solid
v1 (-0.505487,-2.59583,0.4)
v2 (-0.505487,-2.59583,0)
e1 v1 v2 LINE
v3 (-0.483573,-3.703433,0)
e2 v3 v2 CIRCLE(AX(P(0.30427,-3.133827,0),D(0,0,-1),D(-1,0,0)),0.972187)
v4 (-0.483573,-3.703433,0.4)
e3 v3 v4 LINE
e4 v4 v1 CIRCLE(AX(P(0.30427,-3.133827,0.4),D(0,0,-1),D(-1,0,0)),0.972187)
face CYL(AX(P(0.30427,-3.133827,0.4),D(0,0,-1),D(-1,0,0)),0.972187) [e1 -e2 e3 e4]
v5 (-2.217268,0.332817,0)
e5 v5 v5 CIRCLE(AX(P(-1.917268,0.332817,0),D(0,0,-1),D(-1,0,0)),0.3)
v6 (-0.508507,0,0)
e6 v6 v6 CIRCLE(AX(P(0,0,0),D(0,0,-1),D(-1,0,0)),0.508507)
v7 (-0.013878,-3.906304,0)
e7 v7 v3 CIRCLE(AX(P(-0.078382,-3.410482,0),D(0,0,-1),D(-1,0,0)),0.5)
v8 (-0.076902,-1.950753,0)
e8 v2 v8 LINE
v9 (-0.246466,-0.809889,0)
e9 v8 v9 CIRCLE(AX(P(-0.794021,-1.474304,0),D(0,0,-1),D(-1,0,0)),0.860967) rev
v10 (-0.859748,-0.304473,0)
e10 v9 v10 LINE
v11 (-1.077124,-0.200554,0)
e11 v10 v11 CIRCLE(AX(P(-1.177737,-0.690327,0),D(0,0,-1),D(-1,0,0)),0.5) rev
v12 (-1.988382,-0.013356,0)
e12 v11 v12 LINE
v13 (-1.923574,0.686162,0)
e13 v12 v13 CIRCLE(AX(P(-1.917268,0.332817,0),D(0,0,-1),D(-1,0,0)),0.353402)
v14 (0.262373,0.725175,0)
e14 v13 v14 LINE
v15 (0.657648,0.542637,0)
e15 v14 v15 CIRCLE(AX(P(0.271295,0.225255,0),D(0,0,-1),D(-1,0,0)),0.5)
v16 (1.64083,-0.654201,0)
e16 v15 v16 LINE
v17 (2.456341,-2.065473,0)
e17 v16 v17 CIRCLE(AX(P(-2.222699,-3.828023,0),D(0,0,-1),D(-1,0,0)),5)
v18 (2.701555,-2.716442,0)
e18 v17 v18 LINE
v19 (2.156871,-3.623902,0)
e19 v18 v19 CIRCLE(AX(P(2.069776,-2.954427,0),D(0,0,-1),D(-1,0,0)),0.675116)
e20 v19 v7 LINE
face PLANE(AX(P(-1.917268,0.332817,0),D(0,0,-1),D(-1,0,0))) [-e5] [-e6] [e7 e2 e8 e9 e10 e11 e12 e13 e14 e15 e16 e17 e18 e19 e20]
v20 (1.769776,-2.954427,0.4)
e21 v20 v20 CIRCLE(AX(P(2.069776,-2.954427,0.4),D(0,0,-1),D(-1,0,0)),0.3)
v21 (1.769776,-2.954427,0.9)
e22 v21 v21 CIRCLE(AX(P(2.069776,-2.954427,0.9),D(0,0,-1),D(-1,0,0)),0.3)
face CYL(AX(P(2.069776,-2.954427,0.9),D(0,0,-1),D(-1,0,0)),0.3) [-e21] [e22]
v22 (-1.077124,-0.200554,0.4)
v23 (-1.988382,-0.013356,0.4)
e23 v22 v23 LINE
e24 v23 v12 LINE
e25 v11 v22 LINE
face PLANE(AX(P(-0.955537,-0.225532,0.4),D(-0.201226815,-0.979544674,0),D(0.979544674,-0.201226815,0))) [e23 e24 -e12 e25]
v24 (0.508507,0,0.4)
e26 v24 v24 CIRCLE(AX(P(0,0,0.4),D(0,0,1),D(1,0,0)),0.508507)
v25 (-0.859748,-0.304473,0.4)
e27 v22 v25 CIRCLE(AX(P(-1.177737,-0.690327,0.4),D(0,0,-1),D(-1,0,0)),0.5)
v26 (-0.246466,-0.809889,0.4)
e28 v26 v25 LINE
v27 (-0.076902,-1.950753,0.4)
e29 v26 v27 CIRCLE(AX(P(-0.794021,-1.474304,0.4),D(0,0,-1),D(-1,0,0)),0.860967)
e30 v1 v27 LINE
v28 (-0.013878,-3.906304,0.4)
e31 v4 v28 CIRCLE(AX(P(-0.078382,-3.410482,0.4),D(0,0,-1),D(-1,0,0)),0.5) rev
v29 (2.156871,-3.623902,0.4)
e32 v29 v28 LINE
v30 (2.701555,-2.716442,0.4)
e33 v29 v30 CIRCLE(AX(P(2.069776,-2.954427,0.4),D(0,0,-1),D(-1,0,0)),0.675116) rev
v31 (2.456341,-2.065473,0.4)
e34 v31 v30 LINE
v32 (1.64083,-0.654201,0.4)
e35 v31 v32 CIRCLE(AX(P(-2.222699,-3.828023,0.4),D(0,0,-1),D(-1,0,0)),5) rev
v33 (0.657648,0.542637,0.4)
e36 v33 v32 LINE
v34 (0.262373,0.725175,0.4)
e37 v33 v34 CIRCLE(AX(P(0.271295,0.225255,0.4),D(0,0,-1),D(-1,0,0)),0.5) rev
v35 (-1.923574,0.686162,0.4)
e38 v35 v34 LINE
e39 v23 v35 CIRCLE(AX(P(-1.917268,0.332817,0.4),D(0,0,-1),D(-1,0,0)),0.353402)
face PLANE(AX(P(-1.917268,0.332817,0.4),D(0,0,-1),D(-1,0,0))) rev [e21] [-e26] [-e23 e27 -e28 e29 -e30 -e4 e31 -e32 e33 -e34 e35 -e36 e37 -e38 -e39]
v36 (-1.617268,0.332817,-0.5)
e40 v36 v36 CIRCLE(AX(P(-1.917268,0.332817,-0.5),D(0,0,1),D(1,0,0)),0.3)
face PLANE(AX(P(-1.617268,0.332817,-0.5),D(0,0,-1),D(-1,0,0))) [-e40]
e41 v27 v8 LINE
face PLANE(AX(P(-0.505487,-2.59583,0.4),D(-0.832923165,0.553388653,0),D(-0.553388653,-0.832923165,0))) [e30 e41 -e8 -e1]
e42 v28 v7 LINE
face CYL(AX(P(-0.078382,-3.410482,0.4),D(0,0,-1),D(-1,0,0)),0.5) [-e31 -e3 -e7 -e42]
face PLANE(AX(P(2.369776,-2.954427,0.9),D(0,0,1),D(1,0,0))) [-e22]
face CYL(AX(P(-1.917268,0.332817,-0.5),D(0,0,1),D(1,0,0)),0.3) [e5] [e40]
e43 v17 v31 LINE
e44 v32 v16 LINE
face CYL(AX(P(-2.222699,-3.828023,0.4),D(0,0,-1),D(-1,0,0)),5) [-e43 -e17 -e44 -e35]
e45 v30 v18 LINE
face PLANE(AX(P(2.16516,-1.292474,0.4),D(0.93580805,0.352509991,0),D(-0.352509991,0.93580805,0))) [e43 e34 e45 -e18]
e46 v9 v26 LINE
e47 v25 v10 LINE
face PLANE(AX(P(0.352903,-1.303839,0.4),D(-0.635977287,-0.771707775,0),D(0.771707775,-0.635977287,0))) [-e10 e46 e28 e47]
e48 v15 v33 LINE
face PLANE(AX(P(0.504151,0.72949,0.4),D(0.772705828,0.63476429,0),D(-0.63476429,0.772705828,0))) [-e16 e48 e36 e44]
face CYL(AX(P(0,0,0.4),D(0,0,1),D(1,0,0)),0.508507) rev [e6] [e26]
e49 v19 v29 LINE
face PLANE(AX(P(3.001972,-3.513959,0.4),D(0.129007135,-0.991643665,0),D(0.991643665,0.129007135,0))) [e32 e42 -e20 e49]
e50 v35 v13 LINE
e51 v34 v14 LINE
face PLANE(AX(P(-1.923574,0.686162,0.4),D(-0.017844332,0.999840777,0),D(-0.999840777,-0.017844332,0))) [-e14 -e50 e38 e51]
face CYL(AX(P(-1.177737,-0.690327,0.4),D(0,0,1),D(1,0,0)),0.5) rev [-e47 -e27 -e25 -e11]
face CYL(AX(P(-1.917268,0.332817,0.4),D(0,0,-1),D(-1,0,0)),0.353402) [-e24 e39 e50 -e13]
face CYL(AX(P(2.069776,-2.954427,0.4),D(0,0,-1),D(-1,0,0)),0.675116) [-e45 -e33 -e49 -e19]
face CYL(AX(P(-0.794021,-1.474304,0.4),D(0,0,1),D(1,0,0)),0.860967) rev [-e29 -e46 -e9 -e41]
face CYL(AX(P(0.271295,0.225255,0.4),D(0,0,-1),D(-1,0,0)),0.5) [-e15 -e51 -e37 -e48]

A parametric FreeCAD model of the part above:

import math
import FreeCAD as App
import Part
import Sketcher

V = App.Vector


def edges_at(feature, points):
    """Names of the edges that pass closest to the given points."""
    edges = feature.Shape.Edges
    near = lambda p: min(range(len(edges)), key=lambda i: edges[i].distToShape(Part.Vertex(*p))[0])
    return sorted({f"Edge{near(p) + 1}" for p in points})


def add_polygon(sketch, points):
    """Adds a closed chain of lines whose ends are joined by coincident constraints."""
    first, n = sketch.GeometryCount, len(points)
    for a, b in zip(points, points[1:] + points[:1]):
        sketch.addGeometry(Part.LineSegment(App.Vector(*a, 0), App.Vector(*b, 0)), False)
    for i in range(n):
        sketch.addConstraint(Sketcher.Constraint("Coincident", first + i, 2, first + (i + 1) % n, 1))

doc = App.newDocument("Part")
body = doc.addObject("PartDesign::Body", "Body")

# Sketch on XY plane
sketch1 = doc.addObject("Sketcher::SketchObject", "Sketch")
body.addObject(sketch1)
sketch1.AttachmentSupport = (doc.XY_Plane, [""])
sketch1.MapMode = "FlatFace"
sketch1.addGeometry([
    Part.LineSegment(V(-1.923574, 0.686162, 0), V(0.504151, 0.72949, 0)),  # 0
    Part.LineSegment(V(0.504151, 0.72949, 0), V(2.16516, -1.292474, 0)),  # 1
    Part.LineSegment(V(2.16516, -1.292474, 0), V(3.001972, -3.513959, 0)),  # 2
    Part.LineSegment(V(3.001972, -3.513959, 0), V(-0.244519, -3.936309, 0)),  # 3
    Part.ArcOfCircle(Part.Circle(V(0.30427, -3.133827, 0), V(0, 0, 1), 0.972187), math.radians(146.400199), math.radians(235.633152)),  # 4
    Part.LineSegment(V(-0.505487, -2.59583, 0), V(0.352903, -1.303839, 0)),  # 5
    Part.LineSegment(V(0.352903, -1.303839, 0), V(-0.955537, -0.225532, 0)),  # 6
    Part.LineSegment(V(-0.955537, -0.225532, 0), V(-1.988382, -0.013356, 0)),  # 7
    Part.ArcOfCircle(Part.Circle(V(-1.917268, 0.332817, 0), V(0, 0, 1), 0.353402), math.radians(91.022459), math.radians(258.391291)),  # 8
], False)
sketch1.addConstraint([
    Sketcher.Constraint("Coincident", 0, 2, 1, 1),
    Sketcher.Constraint("Coincident", 1, 2, 2, 1),
    Sketcher.Constraint("Coincident", 2, 2, 3, 1),
    Sketcher.Constraint("Coincident", 3, 2, 4, 2),
    Sketcher.Constraint("Tangent", 4, 1, 5, 1),
    Sketcher.Constraint("Coincident", 5, 2, 6, 1),
    Sketcher.Constraint("Coincident", 6, 2, 7, 1),
    Sketcher.Constraint("Tangent", 7, 2, 8, 2),
    Sketcher.Constraint("Tangent", 8, 1, 0, 1),
    Sketcher.Constraint("Radius", 8, 0.353402),
    Sketcher.Constraint("DistanceY", 5, 2, 8, 1, 1.990001),
    Sketcher.Constraint("Radius", 4, 0.972187),
    Sketcher.Constraint("DistanceY", 3, 2, 0, 2, 4.6658),
    Sketcher.Constraint("Distance", 2, 2.373869),
    Sketcher.Constraint("Distance", 3, 3.273849),
    Sketcher.Constraint("Distance", 5, 1.551152),
    Sketcher.Constraint("DistanceX", -1, 1, 4, 3, 0.30427),
    Sketcher.Constraint("DistanceX", 8, 3, -1, 1, 1.917268),
    Sketcher.Constraint("DistanceX", -1, 1, 0, 2, 0.504151),
    Sketcher.Constraint("DistanceY", -1, 1, 0, 2, 0.72949),
    Sketcher.Constraint("DistanceX", -1, 1, 1, 2, 2.16516),
    Sketcher.Constraint("DistanceY", 2, 2, -1, 1, 3.513959),
    Sketcher.Constraint("DistanceX", 3, 2, -1, 1, 0.244519),
    Sketcher.Constraint("DistanceY", 4, 1, -1, 1, 2.59583),
    Sketcher.Constraint("DistanceY", 6, 2, -1, 1, 0.225532),
    Sketcher.Constraint("DistanceX", 8, 3, 6, 2, 0.961731),
])
pad1 = doc.addObject("PartDesign::Pad", "Pad")
body.addObject(pad1)
pad1.Profile = sketch1
pad1.Length = 0.4

# Sketch on XZ plane
sketch2 = doc.addObject("Sketcher::SketchObject", "Sketch001")
body.addObject(sketch2)
sketch2.AttachmentSupport = (doc.XZ_Plane, [""])
sketch2.MapMode = "FlatFace"
sketch2.AttachmentOffset = App.Placement(V(0, 0, 2.954427), App.Rotation())
add_polygon(sketch2, [(2.069776, 0.9), (2.069776, 0.4), (2.369776, 0.4), (2.369776, 0.9)])  # lines 0-3
sketch2.addGeometry(Part.LineSegment(V(2.069776, 0.9, 0), V(2.069776, 0.4, 0)), True)  # axis
sketch2.addConstraint([
    Sketcher.Constraint("Vertical", 0),
    Sketcher.Constraint("Horizontal", 1),
    Sketcher.Constraint("Vertical", 2),
    Sketcher.Constraint("Horizontal", 3),
    Sketcher.Constraint("Vertical", 4),
    Sketcher.Constraint("Coincident", 4, 1, 3, 2),
    Sketcher.Constraint("Horizontal", 1, 2, 4, 2),
    Sketcher.Constraint("DistanceX", 1, 1, 1, 2, 0.3),
    Sketcher.Constraint("DistanceY", 0, 2, 0, 1, 0.5),
    Sketcher.Constraint("DistanceY", -1, 1, 0, 2, 0.4),
    Sketcher.Constraint("DistanceX", -1, 1, 0, 2, 2.069776),
])
revolution = doc.addObject("PartDesign::Revolution", "Revolution")
body.addObject(revolution)
revolution.Profile = sketch2
revolution.ReferenceAxis = (sketch2, ["Axis0"])
revolution.Angle = 360

# Sketch on XZ plane
sketch3 = doc.addObject("Sketcher::SketchObject", "Sketch002")
body.addObject(sketch3)
sketch3.AttachmentSupport = (doc.XZ_Plane, [""])
sketch3.MapMode = "FlatFace"
sketch3.AttachmentOffset = App.Placement(V(0, 0, -0.332817), App.Rotation())
add_polygon(sketch3, [(-1.917268, -0.5), (-1.917268, 0), (-1.617268, 0), (-1.617268, -0.5)])  # lines 0-3
sketch3.addGeometry(Part.LineSegment(V(-1.917268, -0.5, 0), V(-1.917268, 0, 0)), True)  # axis
sketch3.addConstraint([
    Sketcher.Constraint("Vertical", 0),
    Sketcher.Constraint("Horizontal", 1),
    Sketcher.Constraint("Vertical", 2),
    Sketcher.Constraint("Horizontal", 3),
    Sketcher.Constraint("Vertical", 4),
    Sketcher.Constraint("Coincident", 4, 1, 3, 2),
    Sketcher.Constraint("PointOnObject", 0, 2, -1),
    Sketcher.Constraint("PointOnObject", 4, 2, -1),
    Sketcher.Constraint("DistanceX", 1, 1, 1, 2, 0.3),
    Sketcher.Constraint("DistanceY", 0, 1, 0, 2, 0.5),
    Sketcher.Constraint("DistanceX", 0, 2, -1, 1, 1.917268),
])
revolution2 = doc.addObject("PartDesign::Revolution", "Revolution001")
body.addObject(revolution2)
revolution2.Profile = sketch3
revolution2.ReferenceAxis = (sketch3, ["Axis0"])
revolution2.Angle = 360

# Sketch on XY plane
sketch4 = doc.addObject("Sketcher::SketchObject", "Sketch003")
body.addObject(sketch4)
sketch4.AttachmentSupport = (doc.XY_Plane, [""])
sketch4.MapMode = "FlatFace"
sketch4.AttachmentOffset = App.Placement(V(0, 0, 0.4), App.Rotation())
sketch4.addGeometry(Part.Circle(V(0, 0, 0), V(0, 0, 1), 0.508507), False)
sketch4.addConstraint([
    Sketcher.Constraint("Coincident", 0, 3, -1, 1),
    Sketcher.Constraint("Diameter", 0, 1.017014),
])
doc.recompute()
hole = doc.addObject("PartDesign::Hole", "Hole")
body.addObject(hole)
hole.Profile = sketch4
hole.ThreadType = "None"
hole.Diameter = 1.017014
hole.DepthType = "Dimension"
hole.Depth = 0.9
hole.DrillPoint = "Flat"
doc.recompute()

fillet = doc.addObject("PartDesign::Fillet", "Fillet")
body.addObject(fillet)
fillet.Base = (hole, edges_at(hole, [(-0.956, -0.226, 0.2), (-0.245, -3.936, 0.2), (0.504, 0.729, 0.2)]))
fillet.Radius = 0.5
doc.recompute()

fillet2 = doc.addObject("PartDesign::Fillet", "Fillet001")
body.addObject(fillet2)
fillet2.Base = (fillet, edges_at(fillet, [(3.002, -3.514, 0.2)]))
fillet2.Radius = 0.675116
doc.recompute()

fillet3 = doc.addObject("PartDesign::Fillet", "Fillet002")
body.addObject(fillet3)
fillet3.Base = (fillet2, edges_at(fillet2, [(0.353, -1.304, 0.2)]))
fillet3.Radius = 0.860967
doc.recompute()

fillet4 = doc.addObject("PartDesign::Fillet", "Fillet003")
body.addObject(fillet4)
fillet4.Base = (fillet3, edges_at(fillet3, [(2.165, -1.292, 0.2)]))
fillet4.Radius = 5

doc.recompute()
